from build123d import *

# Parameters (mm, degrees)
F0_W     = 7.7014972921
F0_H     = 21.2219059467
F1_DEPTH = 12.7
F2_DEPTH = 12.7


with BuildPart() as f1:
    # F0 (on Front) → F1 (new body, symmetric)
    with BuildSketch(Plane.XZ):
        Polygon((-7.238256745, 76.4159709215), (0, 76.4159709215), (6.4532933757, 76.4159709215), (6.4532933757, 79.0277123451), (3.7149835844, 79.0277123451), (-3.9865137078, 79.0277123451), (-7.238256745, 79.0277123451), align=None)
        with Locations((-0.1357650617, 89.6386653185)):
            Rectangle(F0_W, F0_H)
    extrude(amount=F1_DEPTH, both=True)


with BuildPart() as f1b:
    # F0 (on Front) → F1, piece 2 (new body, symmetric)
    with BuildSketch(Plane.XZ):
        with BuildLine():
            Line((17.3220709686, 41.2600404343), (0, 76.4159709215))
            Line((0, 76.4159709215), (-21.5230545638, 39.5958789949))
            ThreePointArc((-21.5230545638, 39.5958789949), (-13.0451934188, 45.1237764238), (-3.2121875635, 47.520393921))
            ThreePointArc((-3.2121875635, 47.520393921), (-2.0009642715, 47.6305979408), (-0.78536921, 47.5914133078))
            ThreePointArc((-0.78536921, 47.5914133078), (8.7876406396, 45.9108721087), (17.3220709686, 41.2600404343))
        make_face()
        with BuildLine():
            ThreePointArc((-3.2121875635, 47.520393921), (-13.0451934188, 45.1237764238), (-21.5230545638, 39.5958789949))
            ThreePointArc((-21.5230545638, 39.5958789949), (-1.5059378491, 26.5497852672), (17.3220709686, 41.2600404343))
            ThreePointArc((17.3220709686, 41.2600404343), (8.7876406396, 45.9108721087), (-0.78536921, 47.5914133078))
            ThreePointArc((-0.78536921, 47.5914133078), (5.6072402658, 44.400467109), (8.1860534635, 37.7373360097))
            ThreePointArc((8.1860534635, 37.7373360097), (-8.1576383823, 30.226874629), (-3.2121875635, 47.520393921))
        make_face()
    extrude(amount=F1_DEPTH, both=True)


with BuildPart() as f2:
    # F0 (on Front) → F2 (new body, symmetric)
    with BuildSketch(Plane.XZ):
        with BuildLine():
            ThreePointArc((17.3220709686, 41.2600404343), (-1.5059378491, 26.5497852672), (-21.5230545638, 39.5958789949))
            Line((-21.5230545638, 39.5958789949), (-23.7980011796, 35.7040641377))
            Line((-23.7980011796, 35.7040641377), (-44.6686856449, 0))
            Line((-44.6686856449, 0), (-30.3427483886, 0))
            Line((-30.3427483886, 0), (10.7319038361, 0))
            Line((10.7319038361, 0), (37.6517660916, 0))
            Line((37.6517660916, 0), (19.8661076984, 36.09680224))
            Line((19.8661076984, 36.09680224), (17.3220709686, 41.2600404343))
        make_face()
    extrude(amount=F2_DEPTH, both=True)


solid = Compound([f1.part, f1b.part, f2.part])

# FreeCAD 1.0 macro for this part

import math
import FreeCAD as App
import Part
import Sketcher

doc = App.newDocument("Part")
params = doc.addObject("Spreadsheet::Sheet", "Params")
for row, (alias, value) in enumerate([
    ("pad1_length", "1 in"),
    ("pad2_length", "1 in"),
    ("pad3_length", "1 in"),
], start=1):
    params.set(f"A{row}", alias)
    params.set(f"B{row}", "=" + value)
    params.setAlias(f"B{row}", alias)

body = doc.addObject("PartDesign::Body", "Body")

# Sketch on XZ plane
sketch1 = body.newObject("Sketcher::SketchObject", "Sketch")
sketch1.AttachmentSupport = (doc.getObject("XZ_Plane"), [""])
sketch1.MapMode = "FlatFace"
sketch1.addGeometry([
    Part.LineSegment(App.Vector(-7.2, 76.4, 0), App.Vector(6.5, 76.4, 0)),  # 0
    Part.LineSegment(App.Vector(6.5, 76.4, 0), App.Vector(6.5, 79, 0)),  # 1
    Part.LineSegment(App.Vector(6.5, 79, 0), App.Vector(3.7, 79, 0)),  # 2
    Part.LineSegment(App.Vector(3.7, 79, 0), App.Vector(3.7, 100.2, 0)),  # 3
    Part.LineSegment(App.Vector(3.7, 100.2, 0), App.Vector(-4, 100.2, 0)),  # 4
    Part.LineSegment(App.Vector(-4, 100.2, 0), App.Vector(-4, 79, 0)),  # 5
    Part.LineSegment(App.Vector(-4, 79, 0), App.Vector(-7.2, 79, 0)),  # 6
    Part.LineSegment(App.Vector(-7.2, 79, 0), App.Vector(-7.2, 76.4, 0)),  # 7
], False)
sketch1.addConstraint([
    Sketcher.Constraint("Coincident", 0, 2, 1, 1),
    Sketcher.Constraint("Coincident", 1, 2, 2, 1),
    Sketcher.Constraint("Coincident", 2, 2, 3, 1),
    Sketcher.Constraint("Coincident", 3, 2, 4, 1),
    Sketcher.Constraint("Coincident", 4, 2, 5, 1),
    Sketcher.Constraint("Coincident", 5, 2, 6, 1),
    Sketcher.Constraint("Coincident", 6, 2, 7, 1),
    Sketcher.Constraint("Coincident", 7, 2, 0, 1),
    Sketcher.Constraint("Horizontal", 0),
    Sketcher.Constraint("Vertical", 1),
    Sketcher.Constraint("Horizontal", 2),
    Sketcher.Constraint("Vertical", 3),
    Sketcher.Constraint("Horizontal", 4),
    Sketcher.Constraint("Vertical", 5),
    Sketcher.Constraint("Horizontal", 6),
    Sketcher.Constraint("Vertical", 7),
    Sketcher.Constraint("Horizontal", 2, 2, 5, 2),
    Sketcher.Constraint("DistanceX", 0, 1, 0, 2, 13.69155),
    Sketcher.Constraint("DistanceX", 2, 2, 2, 1, 2.73831),
    Sketcher.Constraint("DistanceY", 1, 1, 1, 2, 2.611741),
    Sketcher.Constraint("DistanceX", 4, 2, 4, 1, 7.701497),
    Sketcher.Constraint("DistanceY", 3, 1, 3, 2, 21.221906),
    Sketcher.Constraint("DistanceY", -1, 1, 0, 2, 76.415971),
    Sketcher.Constraint("DistanceX", -1, 1, 0, 2, 6.453293),
])
pad1 = body.newObject("PartDesign::Pad", "Pad")
pad1.Profile = sketch1
pad1.setExpression("Length", "Params.pad1_length")
pad1.Midplane = True
body2 = doc.addObject("PartDesign::Body", "Body001")

# Sketch on XZ plane
sketch2 = body2.newObject("Sketcher::SketchObject", "Sketch001")
sketch2.AttachmentSupport = (doc.getObject("XZ_Plane001"), [""])
sketch2.MapMode = "FlatFace"
sketch2.addGeometry([
    Part.LineSegment(App.Vector(17.3, 41.3, 0), App.Vector(0, 76.4, 0)),  # 0
    Part.LineSegment(App.Vector(0, 76.4, 0), App.Vector(-21.5, 39.6, 0)),  # 1
    Part.ArcOfCircle(Part.Circle(App.Vector(-2.4, 47.1, 0), App.Vector(0, 0, 1), 20.5), math.radians(-159), math.radians(-16)),  # 2
    Part.ArcOfCircle(Part.Circle(App.Vector(-1.7, 37.7, 0), App.Vector(0, 0, 1), 9.9), math.radians(84.63), math.radians(98.72)),  # 3
    Part.ArcOfCircle(Part.Circle(App.Vector(-1.7, 37.7, 0), App.Vector(0, 0, 1), 9.9), math.radians(0), math.radians(85)),  # 4
    Part.ArcOfCircle(Part.Circle(App.Vector(-1.7, 37.7, 0), App.Vector(0, 0, 1), 9.9), math.radians(99), math.radians(360)),  # 5
], False)
sketch2.addConstraint([
    Sketcher.Constraint("Coincident", 0, 2, 1, 1),
    Sketcher.Constraint("Coincident", 1, 2, 2, 1),
    Sketcher.Constraint("Coincident", 2, 2, 0, 1),
    Sketcher.Constraint("Tangent", 3, 1, 4, 2),
    Sketcher.Constraint("Tangent", 4, 1, 5, 2),
    Sketcher.Constraint("Tangent", 5, 1, 3, 2),
    Sketcher.Constraint("PointOnObject", 0, 2, -2),
    Sketcher.Constraint("Horizontal", 5, 3, 4, 1),
    Sketcher.Constraint("Radius", 2, 20.548897),
    Sketcher.Constraint("Radius", 3, 9.897497),
    Sketcher.Constraint("Distance", 1, 42.64928),
    Sketcher.Constraint("DistanceY", -1, 1, 2, 3, 47.079851),
    Sketcher.Constraint("DistanceY", -1, 1, 0, 2, 76.415971),
    Sketcher.Constraint("DistanceY", -1, 1, 1, 2, 39.595879),
    Sketcher.Constraint("DistanceX", -1, 1, 2, 2, 17.322071),
    Sketcher.Constraint("DistanceX", 3, 1, -1, 1, 0.785369),
    Sketcher.Constraint("DistanceX", 2, 3, 3, 3, 0.674021),
    Sketcher.Constraint("DistanceX", 5, 1, 3, 1, 2.426818),
    Sketcher.Constraint("DistanceY", -1, 1, 3, 3, 37.737336),
])
pad2 = body2.newObject("PartDesign::Pad", "Pad001")
pad2.Profile = sketch2
pad2.setExpression("Length", "Params.pad2_length")
pad2.Midplane = True
body3 = doc.addObject("PartDesign::Body", "Body002")

# Sketch on XZ plane
sketch3 = body3.newObject("Sketcher::SketchObject", "Sketch002")
sketch3.AttachmentSupport = (doc.getObject("XZ_Plane002"), [""])
sketch3.MapMode = "FlatFace"
sketch3.addGeometry([
    Part.ArcOfCircle(Part.Circle(App.Vector(-2.4, 47.1, 0), App.Vector(0, 0, 1), 20.5), math.radians(-159), math.radians(-16)),  # 0
    Part.LineSegment(App.Vector(-21.5, 39.6, 0), App.Vector(-23.8, 35.7, 0)),  # 1
    Part.LineSegment(App.Vector(-23.8, 35.7, 0), App.Vector(-44.7, 0, 0)),  # 2
    Part.LineSegment(App.Vector(-44.7, 0, 0), App.Vector(37.7, 0, 0)),  # 3
    Part.LineSegment(App.Vector(37.7, 0, 0), App.Vector(19.9, 36.1, 0)),  # 4
    Part.LineSegment(App.Vector(19.9, 36.1, 0), App.Vector(17.3, 41.3, 0)),  # 5
], False)
sketch3.addConstraint([
    Sketcher.Constraint("Coincident", 0, 1, 1, 1),
    Sketcher.Constraint("Coincident", 1, 2, 2, 1),
    Sketcher.Constraint("Coincident", 2, 2, 3, 1),
    Sketcher.Constraint("Coincident", 3, 2, 4, 1),
    Sketcher.Constraint("Coincident", 4, 2, 5, 1),
    Sketcher.Constraint("Coincident", 5, 2, 0, 2),
    Sketcher.Constraint("Horizontal", 3),
    Sketcher.Constraint("PointOnObject", 2, 2, -1),
    Sketcher.Constraint("Parallel", 1, 2),
    Sketcher.Constraint("Parallel", 4, 5),
    Sketcher.Constraint("Radius", 0, 20.548897),
    Sketcher.Constraint("DistanceX", 3, 1, 3, 2, 82.320452),
    Sketcher.Constraint("DistanceX", 1, 2, -1, 1, 23.798001),
    Sketcher.Constraint("Distance", 1, 4.507949),
    Sketcher.Constraint("DistanceY", -1, 1, 0, 3, 47.079851),
    Sketcher.Constraint("DistanceY", -1, 1, 0, 1, 39.595879),
    Sketcher.Constraint("DistanceX", -1, 1, 5, 2, 17.322071),
    Sketcher.Constraint("DistanceY", -1, 1, 5, 2, 41.26004),
    Sketcher.Constraint("DistanceY", 4, 2, 0, 3, 10.983049),
])
pad3 = body3.newObject("PartDesign::Pad", "Pad002")
pad3.Profile = sketch3
pad3.setExpression("Length", "Params.pad3_length")
pad3.Midplane = True

doc.recompute()
